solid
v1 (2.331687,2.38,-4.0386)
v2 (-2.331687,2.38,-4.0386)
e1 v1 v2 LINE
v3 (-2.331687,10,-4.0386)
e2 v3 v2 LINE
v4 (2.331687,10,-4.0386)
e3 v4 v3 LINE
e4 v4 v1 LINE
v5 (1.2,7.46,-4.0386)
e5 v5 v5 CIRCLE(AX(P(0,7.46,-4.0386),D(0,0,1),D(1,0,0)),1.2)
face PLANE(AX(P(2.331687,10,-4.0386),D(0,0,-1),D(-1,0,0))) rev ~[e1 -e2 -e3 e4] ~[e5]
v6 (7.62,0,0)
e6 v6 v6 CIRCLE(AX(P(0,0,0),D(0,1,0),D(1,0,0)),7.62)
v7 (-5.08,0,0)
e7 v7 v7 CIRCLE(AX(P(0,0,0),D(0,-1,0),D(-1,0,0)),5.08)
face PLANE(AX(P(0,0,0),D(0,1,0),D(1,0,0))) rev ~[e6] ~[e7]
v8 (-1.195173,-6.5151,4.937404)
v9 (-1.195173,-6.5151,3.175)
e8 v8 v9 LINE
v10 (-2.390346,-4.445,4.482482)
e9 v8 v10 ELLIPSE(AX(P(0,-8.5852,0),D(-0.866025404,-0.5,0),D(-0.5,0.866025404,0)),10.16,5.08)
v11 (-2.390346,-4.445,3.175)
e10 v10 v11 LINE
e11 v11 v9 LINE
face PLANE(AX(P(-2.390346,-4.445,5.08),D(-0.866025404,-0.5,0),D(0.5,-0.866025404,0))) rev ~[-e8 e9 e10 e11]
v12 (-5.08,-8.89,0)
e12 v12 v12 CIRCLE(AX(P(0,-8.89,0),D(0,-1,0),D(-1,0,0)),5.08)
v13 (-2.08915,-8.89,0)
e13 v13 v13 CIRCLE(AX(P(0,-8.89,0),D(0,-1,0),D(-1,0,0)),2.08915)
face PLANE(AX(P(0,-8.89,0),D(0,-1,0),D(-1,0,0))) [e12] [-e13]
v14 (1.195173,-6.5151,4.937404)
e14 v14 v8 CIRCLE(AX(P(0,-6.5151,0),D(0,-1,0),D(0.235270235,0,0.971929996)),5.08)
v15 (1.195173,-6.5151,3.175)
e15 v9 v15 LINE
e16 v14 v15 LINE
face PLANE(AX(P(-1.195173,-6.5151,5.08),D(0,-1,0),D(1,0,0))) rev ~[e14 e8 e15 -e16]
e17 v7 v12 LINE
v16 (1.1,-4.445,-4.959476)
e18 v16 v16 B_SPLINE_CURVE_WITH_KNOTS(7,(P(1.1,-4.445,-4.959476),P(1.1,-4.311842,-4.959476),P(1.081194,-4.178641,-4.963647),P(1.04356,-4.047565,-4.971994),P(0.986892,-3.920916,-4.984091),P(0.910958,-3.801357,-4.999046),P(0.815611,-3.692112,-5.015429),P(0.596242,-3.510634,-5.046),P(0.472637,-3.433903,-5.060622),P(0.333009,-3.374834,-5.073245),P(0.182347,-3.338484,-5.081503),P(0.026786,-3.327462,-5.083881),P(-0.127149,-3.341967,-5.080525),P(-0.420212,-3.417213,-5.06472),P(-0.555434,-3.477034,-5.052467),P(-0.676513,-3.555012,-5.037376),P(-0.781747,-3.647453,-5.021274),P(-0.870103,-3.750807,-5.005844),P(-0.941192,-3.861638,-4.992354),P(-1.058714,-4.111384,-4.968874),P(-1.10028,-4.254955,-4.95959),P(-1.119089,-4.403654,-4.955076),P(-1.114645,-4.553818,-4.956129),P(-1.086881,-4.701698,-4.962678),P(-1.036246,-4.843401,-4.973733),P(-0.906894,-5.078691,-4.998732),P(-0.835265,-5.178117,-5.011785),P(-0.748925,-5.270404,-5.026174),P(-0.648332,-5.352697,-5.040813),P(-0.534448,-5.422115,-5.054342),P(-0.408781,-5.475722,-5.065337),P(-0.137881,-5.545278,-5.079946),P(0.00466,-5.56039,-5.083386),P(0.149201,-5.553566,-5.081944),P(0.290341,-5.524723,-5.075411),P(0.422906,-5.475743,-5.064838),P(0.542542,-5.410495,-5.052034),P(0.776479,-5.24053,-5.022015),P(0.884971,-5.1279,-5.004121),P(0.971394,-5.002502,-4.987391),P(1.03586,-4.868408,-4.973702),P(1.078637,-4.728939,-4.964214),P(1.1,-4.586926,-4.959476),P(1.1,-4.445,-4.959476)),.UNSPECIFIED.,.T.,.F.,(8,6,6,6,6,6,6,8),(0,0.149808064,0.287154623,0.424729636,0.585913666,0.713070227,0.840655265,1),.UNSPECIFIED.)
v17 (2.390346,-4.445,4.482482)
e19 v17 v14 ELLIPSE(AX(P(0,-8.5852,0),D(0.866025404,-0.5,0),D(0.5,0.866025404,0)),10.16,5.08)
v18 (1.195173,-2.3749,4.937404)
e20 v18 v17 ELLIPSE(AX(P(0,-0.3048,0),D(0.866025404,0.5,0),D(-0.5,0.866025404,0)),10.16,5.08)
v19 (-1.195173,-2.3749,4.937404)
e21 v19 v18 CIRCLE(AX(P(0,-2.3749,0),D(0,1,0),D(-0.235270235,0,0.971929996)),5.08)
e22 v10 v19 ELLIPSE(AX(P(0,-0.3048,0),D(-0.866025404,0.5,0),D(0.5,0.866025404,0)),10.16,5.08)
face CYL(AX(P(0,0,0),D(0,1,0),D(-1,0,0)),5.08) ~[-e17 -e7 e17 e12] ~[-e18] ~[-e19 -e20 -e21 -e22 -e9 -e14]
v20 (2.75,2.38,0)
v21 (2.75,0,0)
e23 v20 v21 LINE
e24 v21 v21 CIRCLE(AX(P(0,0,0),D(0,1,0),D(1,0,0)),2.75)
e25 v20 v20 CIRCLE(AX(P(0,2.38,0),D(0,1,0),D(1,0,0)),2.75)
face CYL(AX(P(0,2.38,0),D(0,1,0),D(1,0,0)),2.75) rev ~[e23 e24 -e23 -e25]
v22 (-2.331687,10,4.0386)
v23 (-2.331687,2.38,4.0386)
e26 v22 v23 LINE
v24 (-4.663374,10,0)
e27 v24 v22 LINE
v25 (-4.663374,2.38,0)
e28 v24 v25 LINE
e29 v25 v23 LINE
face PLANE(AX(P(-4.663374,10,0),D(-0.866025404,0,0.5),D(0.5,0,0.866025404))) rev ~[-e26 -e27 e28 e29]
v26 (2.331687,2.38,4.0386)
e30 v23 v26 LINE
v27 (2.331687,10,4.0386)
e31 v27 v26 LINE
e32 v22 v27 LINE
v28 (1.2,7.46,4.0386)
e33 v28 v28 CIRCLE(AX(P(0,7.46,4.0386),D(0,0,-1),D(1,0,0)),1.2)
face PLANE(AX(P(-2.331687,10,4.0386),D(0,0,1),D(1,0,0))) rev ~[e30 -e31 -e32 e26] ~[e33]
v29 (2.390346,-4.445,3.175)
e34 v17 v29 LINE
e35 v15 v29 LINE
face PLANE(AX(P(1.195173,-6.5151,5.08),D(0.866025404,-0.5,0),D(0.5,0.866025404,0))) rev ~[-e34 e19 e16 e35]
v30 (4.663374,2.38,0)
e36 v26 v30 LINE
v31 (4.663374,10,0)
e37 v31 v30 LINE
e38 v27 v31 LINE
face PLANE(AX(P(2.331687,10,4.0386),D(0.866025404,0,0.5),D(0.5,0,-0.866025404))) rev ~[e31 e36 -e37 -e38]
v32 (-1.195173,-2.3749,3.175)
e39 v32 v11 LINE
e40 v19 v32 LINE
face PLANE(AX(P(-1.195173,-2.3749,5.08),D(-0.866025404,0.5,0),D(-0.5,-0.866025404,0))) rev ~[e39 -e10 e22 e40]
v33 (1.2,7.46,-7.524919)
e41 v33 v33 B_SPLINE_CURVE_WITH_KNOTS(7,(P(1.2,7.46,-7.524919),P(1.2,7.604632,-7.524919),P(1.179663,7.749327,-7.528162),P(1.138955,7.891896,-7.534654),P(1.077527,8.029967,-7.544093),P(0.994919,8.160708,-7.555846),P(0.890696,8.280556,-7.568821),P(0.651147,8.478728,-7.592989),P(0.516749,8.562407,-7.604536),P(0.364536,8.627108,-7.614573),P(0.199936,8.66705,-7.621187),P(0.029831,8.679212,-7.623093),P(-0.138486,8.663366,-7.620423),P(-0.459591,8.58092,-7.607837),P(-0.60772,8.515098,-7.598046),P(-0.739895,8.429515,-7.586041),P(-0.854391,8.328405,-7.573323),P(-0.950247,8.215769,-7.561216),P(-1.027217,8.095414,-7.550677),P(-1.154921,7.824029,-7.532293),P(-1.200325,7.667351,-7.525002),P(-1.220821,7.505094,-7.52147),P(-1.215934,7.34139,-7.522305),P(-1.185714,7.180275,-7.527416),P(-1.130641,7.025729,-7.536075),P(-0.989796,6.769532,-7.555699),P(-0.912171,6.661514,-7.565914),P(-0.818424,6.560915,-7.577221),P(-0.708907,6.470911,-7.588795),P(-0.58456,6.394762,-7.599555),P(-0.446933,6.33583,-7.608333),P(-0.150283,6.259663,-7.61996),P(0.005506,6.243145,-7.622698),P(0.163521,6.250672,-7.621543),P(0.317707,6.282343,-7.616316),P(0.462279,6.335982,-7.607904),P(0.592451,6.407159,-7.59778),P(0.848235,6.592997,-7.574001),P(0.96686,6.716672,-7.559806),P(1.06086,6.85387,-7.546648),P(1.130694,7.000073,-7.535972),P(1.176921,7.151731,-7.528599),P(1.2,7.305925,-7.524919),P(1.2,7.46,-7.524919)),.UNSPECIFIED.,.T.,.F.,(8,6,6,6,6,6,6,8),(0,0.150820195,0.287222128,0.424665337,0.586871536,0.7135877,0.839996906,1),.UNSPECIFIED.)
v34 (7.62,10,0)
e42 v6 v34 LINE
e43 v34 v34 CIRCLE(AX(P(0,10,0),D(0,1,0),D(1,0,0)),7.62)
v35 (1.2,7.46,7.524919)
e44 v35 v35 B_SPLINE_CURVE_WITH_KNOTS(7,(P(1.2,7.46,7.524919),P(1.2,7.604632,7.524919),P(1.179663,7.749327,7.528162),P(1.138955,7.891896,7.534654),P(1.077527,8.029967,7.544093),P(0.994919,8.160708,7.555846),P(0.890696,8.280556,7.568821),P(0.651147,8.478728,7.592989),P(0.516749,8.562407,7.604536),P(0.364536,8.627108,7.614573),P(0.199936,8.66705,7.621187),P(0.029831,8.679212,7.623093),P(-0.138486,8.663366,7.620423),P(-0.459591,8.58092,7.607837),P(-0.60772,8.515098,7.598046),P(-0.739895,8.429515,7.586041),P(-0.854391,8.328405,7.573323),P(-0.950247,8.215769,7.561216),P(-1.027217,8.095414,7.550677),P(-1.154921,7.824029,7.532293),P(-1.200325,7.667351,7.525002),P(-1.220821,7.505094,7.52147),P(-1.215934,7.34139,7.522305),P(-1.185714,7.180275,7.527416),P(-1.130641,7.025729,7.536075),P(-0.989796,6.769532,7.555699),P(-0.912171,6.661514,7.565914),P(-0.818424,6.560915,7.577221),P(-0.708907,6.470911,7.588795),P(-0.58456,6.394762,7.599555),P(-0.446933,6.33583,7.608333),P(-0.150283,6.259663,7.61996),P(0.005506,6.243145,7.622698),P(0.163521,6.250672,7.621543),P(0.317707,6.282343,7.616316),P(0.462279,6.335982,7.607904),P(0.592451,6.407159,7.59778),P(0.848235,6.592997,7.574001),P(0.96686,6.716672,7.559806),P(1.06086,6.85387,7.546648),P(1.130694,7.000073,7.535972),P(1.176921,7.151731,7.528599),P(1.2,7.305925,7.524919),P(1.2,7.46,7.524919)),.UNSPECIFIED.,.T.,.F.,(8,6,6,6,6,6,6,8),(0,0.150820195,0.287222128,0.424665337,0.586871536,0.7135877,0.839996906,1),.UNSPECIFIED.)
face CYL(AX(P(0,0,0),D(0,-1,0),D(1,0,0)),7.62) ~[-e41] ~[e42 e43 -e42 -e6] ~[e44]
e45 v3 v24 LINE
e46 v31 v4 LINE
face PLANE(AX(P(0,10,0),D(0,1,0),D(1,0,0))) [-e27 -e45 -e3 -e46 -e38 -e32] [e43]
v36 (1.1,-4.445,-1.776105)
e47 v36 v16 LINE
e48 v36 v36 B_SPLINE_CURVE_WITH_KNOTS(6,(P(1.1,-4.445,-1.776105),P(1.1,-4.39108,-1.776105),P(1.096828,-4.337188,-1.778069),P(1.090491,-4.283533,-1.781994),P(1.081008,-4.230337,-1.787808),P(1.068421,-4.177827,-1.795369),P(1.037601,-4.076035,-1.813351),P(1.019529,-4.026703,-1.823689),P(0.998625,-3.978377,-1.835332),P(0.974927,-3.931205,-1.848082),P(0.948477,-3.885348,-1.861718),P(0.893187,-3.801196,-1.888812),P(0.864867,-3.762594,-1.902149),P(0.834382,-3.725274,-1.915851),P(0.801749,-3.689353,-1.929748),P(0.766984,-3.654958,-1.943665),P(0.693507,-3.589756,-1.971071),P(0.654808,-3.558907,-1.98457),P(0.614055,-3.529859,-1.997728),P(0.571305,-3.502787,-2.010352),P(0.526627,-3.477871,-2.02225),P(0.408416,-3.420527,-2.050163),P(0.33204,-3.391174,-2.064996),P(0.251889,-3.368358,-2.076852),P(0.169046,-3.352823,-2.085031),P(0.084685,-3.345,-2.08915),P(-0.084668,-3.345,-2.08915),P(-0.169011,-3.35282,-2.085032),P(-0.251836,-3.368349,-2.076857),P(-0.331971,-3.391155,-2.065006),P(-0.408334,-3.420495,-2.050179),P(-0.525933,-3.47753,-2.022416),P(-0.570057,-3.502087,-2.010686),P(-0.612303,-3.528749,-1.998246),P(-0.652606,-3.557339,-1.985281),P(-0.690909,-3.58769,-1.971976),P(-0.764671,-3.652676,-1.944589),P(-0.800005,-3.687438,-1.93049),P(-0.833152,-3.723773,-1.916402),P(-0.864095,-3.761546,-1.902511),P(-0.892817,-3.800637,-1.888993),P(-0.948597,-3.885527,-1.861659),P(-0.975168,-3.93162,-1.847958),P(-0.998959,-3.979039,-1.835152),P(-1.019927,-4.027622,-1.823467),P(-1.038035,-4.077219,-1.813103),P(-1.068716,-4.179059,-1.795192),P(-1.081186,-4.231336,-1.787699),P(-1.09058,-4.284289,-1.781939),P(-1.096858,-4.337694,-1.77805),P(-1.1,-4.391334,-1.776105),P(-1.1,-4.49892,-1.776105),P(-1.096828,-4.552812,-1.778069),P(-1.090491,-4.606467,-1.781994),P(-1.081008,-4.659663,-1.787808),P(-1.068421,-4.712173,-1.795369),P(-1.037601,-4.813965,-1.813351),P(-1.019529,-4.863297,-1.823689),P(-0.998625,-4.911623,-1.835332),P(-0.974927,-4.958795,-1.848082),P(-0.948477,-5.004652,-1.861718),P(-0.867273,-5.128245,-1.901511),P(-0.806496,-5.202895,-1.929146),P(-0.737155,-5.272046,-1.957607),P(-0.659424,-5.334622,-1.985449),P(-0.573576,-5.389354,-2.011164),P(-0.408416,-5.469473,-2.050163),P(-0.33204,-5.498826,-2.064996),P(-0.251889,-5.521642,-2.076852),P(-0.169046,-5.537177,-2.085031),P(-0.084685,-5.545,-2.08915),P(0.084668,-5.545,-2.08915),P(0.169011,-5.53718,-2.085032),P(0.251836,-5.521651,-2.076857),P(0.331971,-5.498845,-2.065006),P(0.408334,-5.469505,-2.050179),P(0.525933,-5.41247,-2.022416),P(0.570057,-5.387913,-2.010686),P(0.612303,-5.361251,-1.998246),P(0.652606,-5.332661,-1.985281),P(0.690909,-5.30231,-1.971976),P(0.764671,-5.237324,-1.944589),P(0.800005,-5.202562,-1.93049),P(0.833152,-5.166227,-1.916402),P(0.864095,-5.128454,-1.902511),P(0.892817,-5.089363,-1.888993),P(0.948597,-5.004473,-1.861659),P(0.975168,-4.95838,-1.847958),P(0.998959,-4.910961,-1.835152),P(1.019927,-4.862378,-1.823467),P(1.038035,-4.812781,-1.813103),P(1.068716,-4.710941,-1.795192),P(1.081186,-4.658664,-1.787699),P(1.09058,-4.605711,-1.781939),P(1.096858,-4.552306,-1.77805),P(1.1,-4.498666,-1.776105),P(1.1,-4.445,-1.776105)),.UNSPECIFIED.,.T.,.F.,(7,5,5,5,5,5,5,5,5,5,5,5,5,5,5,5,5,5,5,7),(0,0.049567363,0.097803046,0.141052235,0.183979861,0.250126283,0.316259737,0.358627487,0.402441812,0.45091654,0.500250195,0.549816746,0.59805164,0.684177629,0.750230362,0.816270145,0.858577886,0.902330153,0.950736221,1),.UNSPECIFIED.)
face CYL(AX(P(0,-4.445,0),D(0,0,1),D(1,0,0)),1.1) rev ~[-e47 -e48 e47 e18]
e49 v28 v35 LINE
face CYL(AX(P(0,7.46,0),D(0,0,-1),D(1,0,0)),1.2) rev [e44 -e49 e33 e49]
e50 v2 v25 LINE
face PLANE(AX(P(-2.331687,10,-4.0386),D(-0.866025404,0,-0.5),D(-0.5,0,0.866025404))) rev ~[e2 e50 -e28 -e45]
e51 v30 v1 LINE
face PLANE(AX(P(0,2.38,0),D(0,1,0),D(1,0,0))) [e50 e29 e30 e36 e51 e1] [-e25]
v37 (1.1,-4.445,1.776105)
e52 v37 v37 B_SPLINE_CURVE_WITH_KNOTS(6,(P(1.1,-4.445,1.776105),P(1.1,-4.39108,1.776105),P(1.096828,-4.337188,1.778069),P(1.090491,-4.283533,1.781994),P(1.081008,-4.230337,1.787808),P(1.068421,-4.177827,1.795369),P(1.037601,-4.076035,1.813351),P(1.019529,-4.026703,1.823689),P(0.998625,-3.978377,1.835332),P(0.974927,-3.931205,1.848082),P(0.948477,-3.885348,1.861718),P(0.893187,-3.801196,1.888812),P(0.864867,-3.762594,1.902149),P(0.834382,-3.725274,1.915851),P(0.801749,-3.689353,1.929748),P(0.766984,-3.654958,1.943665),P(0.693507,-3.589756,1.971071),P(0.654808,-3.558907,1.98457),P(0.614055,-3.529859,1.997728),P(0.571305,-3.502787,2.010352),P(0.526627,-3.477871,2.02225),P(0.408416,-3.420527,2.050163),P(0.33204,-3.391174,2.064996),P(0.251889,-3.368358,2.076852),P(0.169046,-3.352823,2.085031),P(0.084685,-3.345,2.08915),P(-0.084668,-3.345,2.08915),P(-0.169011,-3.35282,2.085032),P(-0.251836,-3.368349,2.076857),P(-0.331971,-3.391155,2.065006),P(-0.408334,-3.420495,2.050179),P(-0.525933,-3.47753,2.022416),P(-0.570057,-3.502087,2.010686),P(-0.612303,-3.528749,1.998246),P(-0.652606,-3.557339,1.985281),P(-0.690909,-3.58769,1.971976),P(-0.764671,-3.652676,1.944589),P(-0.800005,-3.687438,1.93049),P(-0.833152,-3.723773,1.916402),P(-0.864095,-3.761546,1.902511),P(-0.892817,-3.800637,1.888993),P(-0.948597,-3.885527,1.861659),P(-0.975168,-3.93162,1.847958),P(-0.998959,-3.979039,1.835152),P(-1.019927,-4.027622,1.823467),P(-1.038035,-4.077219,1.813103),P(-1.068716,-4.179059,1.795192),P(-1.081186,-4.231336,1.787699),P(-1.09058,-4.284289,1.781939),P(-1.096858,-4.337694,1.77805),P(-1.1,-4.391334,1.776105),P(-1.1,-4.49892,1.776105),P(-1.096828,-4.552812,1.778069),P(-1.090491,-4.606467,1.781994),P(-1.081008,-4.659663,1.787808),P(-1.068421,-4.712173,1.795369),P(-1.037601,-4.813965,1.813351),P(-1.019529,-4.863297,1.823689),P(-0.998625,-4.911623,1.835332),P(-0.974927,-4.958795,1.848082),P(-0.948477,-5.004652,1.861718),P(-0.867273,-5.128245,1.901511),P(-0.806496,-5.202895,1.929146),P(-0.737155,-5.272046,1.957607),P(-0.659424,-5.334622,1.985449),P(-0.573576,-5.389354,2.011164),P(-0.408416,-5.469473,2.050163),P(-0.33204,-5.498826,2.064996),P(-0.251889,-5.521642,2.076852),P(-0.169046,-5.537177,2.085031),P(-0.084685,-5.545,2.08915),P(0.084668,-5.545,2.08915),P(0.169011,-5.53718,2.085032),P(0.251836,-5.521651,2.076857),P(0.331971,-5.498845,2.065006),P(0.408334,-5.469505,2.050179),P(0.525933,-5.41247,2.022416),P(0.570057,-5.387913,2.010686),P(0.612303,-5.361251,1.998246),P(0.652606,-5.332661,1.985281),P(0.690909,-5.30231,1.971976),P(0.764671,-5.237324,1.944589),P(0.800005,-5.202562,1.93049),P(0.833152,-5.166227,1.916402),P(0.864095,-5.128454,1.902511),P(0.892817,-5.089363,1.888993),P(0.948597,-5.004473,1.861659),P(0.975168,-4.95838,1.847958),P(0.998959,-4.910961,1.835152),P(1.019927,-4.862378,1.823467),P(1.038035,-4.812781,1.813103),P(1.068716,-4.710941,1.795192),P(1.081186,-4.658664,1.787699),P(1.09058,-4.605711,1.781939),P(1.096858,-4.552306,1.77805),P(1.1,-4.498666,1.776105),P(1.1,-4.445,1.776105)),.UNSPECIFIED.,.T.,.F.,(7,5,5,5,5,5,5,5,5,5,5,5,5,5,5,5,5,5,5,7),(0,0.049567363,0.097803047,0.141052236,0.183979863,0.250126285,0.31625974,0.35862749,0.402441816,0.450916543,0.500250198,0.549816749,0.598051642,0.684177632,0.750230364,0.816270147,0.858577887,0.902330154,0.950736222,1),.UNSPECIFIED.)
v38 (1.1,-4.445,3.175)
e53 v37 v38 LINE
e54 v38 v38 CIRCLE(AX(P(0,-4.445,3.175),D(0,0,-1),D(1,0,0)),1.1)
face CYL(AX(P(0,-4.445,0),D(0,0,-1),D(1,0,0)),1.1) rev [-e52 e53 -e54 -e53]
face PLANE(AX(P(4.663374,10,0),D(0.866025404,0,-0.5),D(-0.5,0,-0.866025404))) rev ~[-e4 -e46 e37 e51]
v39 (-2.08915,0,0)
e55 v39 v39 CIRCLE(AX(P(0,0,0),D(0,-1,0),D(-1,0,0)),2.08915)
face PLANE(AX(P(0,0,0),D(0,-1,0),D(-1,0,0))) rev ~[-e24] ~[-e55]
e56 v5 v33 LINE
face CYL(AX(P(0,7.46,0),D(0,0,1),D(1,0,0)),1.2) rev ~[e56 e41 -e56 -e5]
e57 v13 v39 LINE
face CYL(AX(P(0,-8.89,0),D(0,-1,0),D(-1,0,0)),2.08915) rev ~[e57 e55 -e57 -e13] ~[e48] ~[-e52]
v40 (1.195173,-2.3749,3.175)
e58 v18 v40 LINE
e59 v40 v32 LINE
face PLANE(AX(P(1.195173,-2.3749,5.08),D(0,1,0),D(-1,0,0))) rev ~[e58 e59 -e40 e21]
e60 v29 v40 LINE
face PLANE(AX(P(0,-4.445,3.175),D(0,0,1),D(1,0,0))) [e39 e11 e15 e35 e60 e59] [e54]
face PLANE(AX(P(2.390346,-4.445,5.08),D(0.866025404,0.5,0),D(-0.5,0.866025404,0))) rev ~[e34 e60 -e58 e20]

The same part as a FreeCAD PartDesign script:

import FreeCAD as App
import Part
import Sketcher
from FreeCAD import Vector
Q = App.Units.Quantity


def add_polygon(sketch, points):
    """Adds a closed chain of lines whose ends are joined by coincident constraints."""
    first, n = sketch.GeometryCount, len(points)
    for a, b in zip(points, points[1:] + points[:1]):
        sketch.addGeometry(Part.LineSegment(App.Vector(*a, 0), App.Vector(*b, 0)), False)
    for i in range(n):
        sketch.addConstraint(Sketcher.Constraint("Coincident", first + i, 2, first + (i + 1) % n, 1))

doc = App.newDocument("Part")
body = doc.addObject("PartDesign::Body", "Body")

# Sketch on XZ plane
sketch1 = body.newObject("Sketcher::SketchObject", "Sketch")
sketch1.AttachmentSupport = (doc.getObject("XZ_Plane"), [""])
sketch1.MapMode = "FlatFace"
sketch1.addGeometry(Part.Circle(Vector(0, 0, 0), Vector(0, 0, 1), 7.62), False)
sketch1.addConstraint([
    Sketcher.Constraint("Coincident", 0, 3, -1, 1),
    Sketcher.Constraint("Diameter", 0, 15.24),
])
pad1 = body.newObject("PartDesign::Pad", "Pad")
pad1.Profile = sketch1
pad1.Length = 10
pad1.Reversed = True

# Sketch on XZ plane
sketch2 = body.newObject("Sketcher::SketchObject", "Sketch001")
sketch2.AttachmentSupport = (doc.getObject("XZ_Plane"), [""])
sketch2.MapMode = "FlatFace"
sketch2.AttachmentOffset = App.Placement(Vector(0, 0, -10), App.Rotation())
add_polygon(sketch2, [(-2.331687, -4.0386), (-4.663374, 0), (-2.331687, 4.0386), (2.331687, 4.0386), (4.663374, 0), (2.331687, -4.0386)])  # lines 0-5
sketch2.addConstraint([
    Sketcher.Constraint("Horizontal", 2),
    Sketcher.Constraint("Horizontal", 5),
    Sketcher.Constraint("Symmetric", 0, 2, 3, 2, -1, 1),
    Sketcher.Constraint("Symmetric", 1, 2, 4, 2, -1, 1),
    Sketcher.Constraint("PointOnObject", 0, 2, -1),
    Sketcher.Constraint("Parallel", 0, 3),
    Sketcher.Constraint("Vertical", 2, 2, 4, 2),
    Sketcher.Constraint("Angle", 0, Q("120 deg")),
    Sketcher.Constraint("DistanceY", -1, 1, 1, 2, 4.0386),
    Sketcher.Constraint("DistanceX", 2, 1, 2, 2, 4.663374),
])
pocket1 = body.newObject("PartDesign::Pocket", "Pocket")
pocket1.Profile = sketch2
pocket1.Length = 7.62
pocket1.Reversed = True

# Sketch on XZ plane
sketch3 = body.newObject("Sketcher::SketchObject", "Sketch002")
sketch3.AttachmentSupport = (doc.getObject("XZ_Plane"), [""])
sketch3.MapMode = "FlatFace"
sketch3.AttachmentOffset = App.Placement(Vector(0, 0, -2.38), App.Rotation())
sketch3.addGeometry(Part.Circle(Vector(0, 0, 0), Vector(0, 0, 1), 2.75), False)
sketch3.addConstraint([
    Sketcher.Constraint("Coincident", 0, 3, -1, 1),
    Sketcher.Constraint("Diameter", 0, 5.5),
])
pocket2 = body.newObject("PartDesign::Pocket", "Pocket001")
pocket2.Profile = sketch3
pocket2.Length = 9.5
pocket2.Reversed = True

# Sketch on XZ plane
sketch4 = body.newObject("Sketcher::SketchObject", "Sketch003")
sketch4.AttachmentSupport = (doc.getObject("XZ_Plane"), [""])
sketch4.MapMode = "FlatFace"
sketch4.addGeometry(Part.Circle(Vector(0, 0, 0), Vector(0, 0, 1), 5.08), False)
sketch4.addConstraint([
    Sketcher.Constraint("Coincident", 0, 3, -1, 1),
    Sketcher.Constraint("Diameter", 0, 10.16),
])
pad2 = body.newObject("PartDesign::Pad", "Pad001")
pad2.Profile = sketch4
pad2.Length = 8.89

# Sketch on XZ plane
sketch5 = body.newObject("Sketcher::SketchObject", "Sketch004")
sketch5.AttachmentSupport = (doc.getObject("XZ_Plane"), [""])
sketch5.MapMode = "FlatFace"
sketch5.AttachmentOffset = App.Placement(Vector(0, 0, 8.89), App.Rotation())
sketch5.addGeometry(Part.Circle(Vector(0, 0, 0), Vector(0, 0, 1), 2.08915), False)
sketch5.addConstraint([
    Sketcher.Constraint("Coincident", 0, 3, -1, 1),
    Sketcher.Constraint("Diameter", 0, 4.1783),
])
pocket3 = body.newObject("PartDesign::Pocket", "Pocket002")
pocket3.Profile = sketch5
pocket3.Type = "UpToFirst"

# Sketch on XY plane
sketch6 = body.newObject("Sketcher::SketchObject", "Sketch005")
sketch6.AttachmentSupport = (doc.getObject("XY_Plane"), [""])
sketch6.MapMode = "FlatFace"
sketch6.addGeometry(Part.Circle(Vector(0, -4.445, 0), Vector(0, 0, 1), 1.1), False)
sketch6.addConstraint([
    Sketcher.Constraint("PointOnObject", 0, 3, -2),
    Sketcher.Constraint("Diameter", 0, 2.2),
    Sketcher.Constraint("DistanceY", 0, 3, -1, 1, 4.445),
])
pocket4 = body.newObject("PartDesign::Pocket", "Pocket003")
pocket4.Profile = sketch6
pocket4.Type = "ThroughAll"
pocket4.Midplane = True

# Sketch on XY plane
sketch7 = body.newObject("Sketcher::SketchObject", "Sketch006")
sketch7.AttachmentSupport = (doc.getObject("XY_Plane"), [""])
sketch7.MapMode = "FlatFace"
sketch7.addGeometry(Part.Circle(Vector(0, 7.46, 0), Vector(0, 0, 1), 1.2), False)
sketch7.addConstraint([
    Sketcher.Constraint("PointOnObject", 0, 3, -2),
    Sketcher.Constraint("Diameter", 0, 2.4),
    Sketcher.Constraint("DistanceY", -1, 1, 0, 3, 7.46),
])
pocket5 = body.newObject("PartDesign::Pocket", "Pocket004")
pocket5.Profile = sketch7
pocket5.Type = "ThroughAll"
pocket5.Midplane = True

# Sketch on XY plane
sketch8 = body.newObject("Sketcher::SketchObject", "Sketch007")
sketch8.AttachmentSupport = (doc.getObject("XY_Plane"), [""])
sketch8.MapMode = "FlatFace"
sketch8.AttachmentOffset = App.Placement(Vector(0, 0, 5.08), App.Rotation())
add_polygon(sketch8, [(1.195173, -2.3749), (-1.195173, -2.3749), (-2.390346, -4.445), (-1.195173, -6.5151), (1.195173, -6.5151), (2.390346, -4.445)])  # lines 0-5
sketch8.addConstraint([
    Sketcher.Constraint("Horizontal", 0),
    Sketcher.Constraint("Horizontal", 3),
    Sketcher.Constraint("Symmetric", 1, 2, 4, 2, -2),
    Sketcher.Constraint("Parallel", 1, 4),
    Sketcher.Constraint("Parallel", 2, 5),
    Sketcher.Constraint("Vertical", 0, 2, 2, 2),
    Sketcher.Constraint("Vertical", 3, 2, 5, 2),
    Sketcher.Constraint("Angle", 1, Q("-120 deg")),
    Sketcher.Constraint("DistanceY", 1, 2, -1, 1, 4.445),
    Sketcher.Constraint("DistanceY", 0, 2, -1, 1, 2.3749),
    Sketcher.Constraint("DistanceX", 0, 2, 0, 1, 2.390346),
])
pocket6 = body.newObject("PartDesign::Pocket", "Pocket005")
pocket6.Profile = sketch8
pocket6.Length = 1.905

doc.recompute()
